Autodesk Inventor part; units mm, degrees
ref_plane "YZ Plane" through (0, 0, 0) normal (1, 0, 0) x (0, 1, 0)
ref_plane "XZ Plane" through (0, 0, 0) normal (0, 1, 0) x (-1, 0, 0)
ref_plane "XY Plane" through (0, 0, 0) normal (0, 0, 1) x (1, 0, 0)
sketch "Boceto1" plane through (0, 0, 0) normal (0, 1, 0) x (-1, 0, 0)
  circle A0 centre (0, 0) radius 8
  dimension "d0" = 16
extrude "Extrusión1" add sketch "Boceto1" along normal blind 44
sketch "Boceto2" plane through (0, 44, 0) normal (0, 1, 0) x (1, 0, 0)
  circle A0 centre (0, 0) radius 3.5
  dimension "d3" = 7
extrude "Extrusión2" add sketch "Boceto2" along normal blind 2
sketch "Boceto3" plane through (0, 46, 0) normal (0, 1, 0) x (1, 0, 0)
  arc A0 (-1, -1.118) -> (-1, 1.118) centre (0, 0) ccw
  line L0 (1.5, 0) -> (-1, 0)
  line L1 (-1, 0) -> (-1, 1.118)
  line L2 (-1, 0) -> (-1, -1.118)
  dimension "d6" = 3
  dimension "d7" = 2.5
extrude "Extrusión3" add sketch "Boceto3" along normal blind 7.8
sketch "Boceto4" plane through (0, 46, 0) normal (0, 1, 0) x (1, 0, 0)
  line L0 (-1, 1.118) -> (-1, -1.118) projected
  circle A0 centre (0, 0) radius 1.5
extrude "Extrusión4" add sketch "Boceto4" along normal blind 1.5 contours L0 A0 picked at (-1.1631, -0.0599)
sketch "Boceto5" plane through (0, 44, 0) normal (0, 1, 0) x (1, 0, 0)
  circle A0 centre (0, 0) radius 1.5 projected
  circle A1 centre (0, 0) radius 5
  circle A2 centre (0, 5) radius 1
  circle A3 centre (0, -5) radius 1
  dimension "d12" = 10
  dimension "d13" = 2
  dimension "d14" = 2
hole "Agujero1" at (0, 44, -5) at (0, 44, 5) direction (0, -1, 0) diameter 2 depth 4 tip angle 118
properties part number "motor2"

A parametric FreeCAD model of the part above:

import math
import FreeCAD as App
import Part
import Sketcher

V = App.Vector
Q = App.Units.Quantity

doc = App.newDocument("Part")
params = doc.addObject("Spreadsheet::Sheet", "Params")
for row, (alias, value) in enumerate([
    ("sketch1_diameter", "16 mm"),
    ("pad1_length", "44 mm"),
    ("sketch2_diameter", "7 mm"),
    ("pad2_length", "2 mm"),
    ("sketch3_radius", "1.5 mm"),
    ("pad3_length", "7.8 mm"),
    ("sketch4_radius", "1.5 mm"),
    ("pad4_length", "1.5 mm"),
    ("sketch5_diameter", "2 mm"),
    ("hole_diameter", "2 mm"),
    ("hole_depth", "4 mm"),
], start=1):
    params.set(f"A{row}", alias)
    params.set(f"B{row}", "=" + value)
    params.setAlias(f"B{row}", alias)

body = doc.addObject("PartDesign::Body", "Body")

# Sketch on XZ plane
sketch1 = body.newObject("Sketcher::SketchObject", "Sketch")
sketch1.AttachmentSupport = (doc.getObject("XZ_Plane"), [""])
sketch1.MapMode = "FlatFace"
sketch1.addGeometry(Part.Circle(V(0, 0, 0), V(0, 0, 1), 8), False)
sketch1.addConstraint([
    Sketcher.Constraint("Coincident", 0, 3, -1, 1),
    Sketcher.Constraint("Diameter", 0, Q("16 mm")),
])
sketch1.setExpression("Constraints[1]", "Params.sketch1_diameter")
pad1 = body.newObject("PartDesign::Pad", "Pad")
pad1.Profile = sketch1
pad1.setExpression("Length", "Params.pad1_length")
pad1.Reversed = True

# Sketch on XZ plane
sketch2 = body.newObject("Sketcher::SketchObject", "Sketch001")
sketch2.AttachmentSupport = (doc.getObject("XZ_Plane"), [""])
sketch2.MapMode = "FlatFace"
sketch2.AttachmentOffset = App.Placement(V(0, 0, -44), App.Rotation())
sketch2.addGeometry(Part.Circle(V(0, 0, 0), V(0, 0, 1), 3.5), False)
sketch2.addConstraint([
    Sketcher.Constraint("Coincident", 0, 3, -1, 1),
    Sketcher.Constraint("Diameter", 0, Q("7 mm")),
])
sketch2.setExpression("Constraints[1]", "Params.sketch2_diameter")
pad2 = body.newObject("PartDesign::Pad", "Pad001")
pad2.Profile = sketch2
pad2.setExpression("Length", "Params.pad2_length")
pad2.Reversed = True

# Sketch on XZ plane
sketch3 = body.newObject("Sketcher::SketchObject", "Sketch002")
sketch3.AttachmentSupport = (doc.getObject("XZ_Plane"), [""])
sketch3.MapMode = "FlatFace"
sketch3.AttachmentOffset = App.Placement(V(0, 0, -46), App.Rotation())
sketch3.addGeometry([
    Part.ArcOfCircle(Part.Circle(V(0, 0, 0), V(0, 0, 1), 1.5), math.radians(-132), math.radians(132)),
    Part.LineSegment(V(-1, -1.1, 0), V(-1, 1.1, 0)),
], False)
sketch3.addConstraint([
    Sketcher.Constraint("Coincident", 0, 1, 1, 1),
    Sketcher.Constraint("Coincident", 1, 2, 0, 2),
    Sketcher.Constraint("Vertical", 1),
    Sketcher.Constraint("Coincident", 0, 3, -1, 1),
    Sketcher.Constraint("Radius", 0, Q("1.5 mm")),
    Sketcher.Constraint("DistanceX", 0, 1, -1, 1, Q("1 mm")),
])
sketch3.setExpression("Constraints[4]", "Params.sketch3_radius")
pad3 = body.newObject("PartDesign::Pad", "Pad002")
pad3.Profile = sketch3
pad3.setExpression("Length", "Params.pad3_length")
pad3.Reversed = True

# Sketch on XZ plane
sketch4 = body.newObject("Sketcher::SketchObject", "Sketch003")
sketch4.AttachmentSupport = (doc.getObject("XZ_Plane"), [""])
sketch4.MapMode = "FlatFace"
sketch4.AttachmentOffset = App.Placement(V(0, 0, -46), App.Rotation())
sketch4.addGeometry([
    Part.LineSegment(V(-1, 1.1, 0), V(-1, -1.1, 0)),
    Part.ArcOfCircle(Part.Circle(V(0, 0, 0), V(0, 0, 1), 1.5), math.radians(132), math.radians(228)),
], False)
sketch4.addConstraint([
    Sketcher.Constraint("Coincident", 0, 1, 1, 1),
    Sketcher.Constraint("Coincident", 1, 2, 0, 2),
    Sketcher.Constraint("Vertical", 0),
    Sketcher.Constraint("Coincident", 1, 3, -1, 1),
    Sketcher.Constraint("Radius", 1, Q("1.5 mm")),
    Sketcher.Constraint("DistanceX", 0, 1, -1, 1, Q("1 mm")),
])
sketch4.setExpression("Constraints[4]", "Params.sketch4_radius")
pad4 = body.newObject("PartDesign::Pad", "Pad003")
pad4.Profile = sketch4
pad4.setExpression("Length", "Params.pad4_length")
pad4.Reversed = True

# Sketch on XZ plane
sketch5 = body.newObject("Sketcher::SketchObject", "Sketch004")
sketch5.AttachmentSupport = (doc.getObject("XZ_Plane"), [""])
sketch5.MapMode = "FlatFace"
sketch5.AttachmentOffset = App.Placement(V(0, 0, -44), App.Rotation())
sketch5.addGeometry([
    Part.Circle(V(0, -5, 0), V(0, 0, 1), 1),
    Part.Circle(V(0, 5, 0), V(0, 0, 1), 1),
], False)
sketch5.addConstraint([
    Sketcher.Constraint("Equal", 0, 1),
    Sketcher.Constraint("Symmetric", 0, 3, 1, 3, -1, 1),
    Sketcher.Constraint("PointOnObject", 0, 3, -2),
    Sketcher.Constraint("Diameter", 0, Q("2 mm")),
    Sketcher.Constraint("DistanceY", 0, 3, -1, 1, Q("5 mm")),
])
sketch5.setExpression("Constraints[3]", "Params.sketch5_diameter")
doc.recompute()
hole = body.newObject("PartDesign::Hole", "Hole")
hole.Profile = sketch5
hole.ThreadType = "None"
hole.setExpression("Diameter", "Params.hole_diameter")
hole.DepthType = "Dimension"
hole.setExpression("Depth", "Params.hole_depth")
hole.DrillPoint = "Angled"
hole.DrillPointAngle = 118
hole.Reversed = True

doc.recompute()
